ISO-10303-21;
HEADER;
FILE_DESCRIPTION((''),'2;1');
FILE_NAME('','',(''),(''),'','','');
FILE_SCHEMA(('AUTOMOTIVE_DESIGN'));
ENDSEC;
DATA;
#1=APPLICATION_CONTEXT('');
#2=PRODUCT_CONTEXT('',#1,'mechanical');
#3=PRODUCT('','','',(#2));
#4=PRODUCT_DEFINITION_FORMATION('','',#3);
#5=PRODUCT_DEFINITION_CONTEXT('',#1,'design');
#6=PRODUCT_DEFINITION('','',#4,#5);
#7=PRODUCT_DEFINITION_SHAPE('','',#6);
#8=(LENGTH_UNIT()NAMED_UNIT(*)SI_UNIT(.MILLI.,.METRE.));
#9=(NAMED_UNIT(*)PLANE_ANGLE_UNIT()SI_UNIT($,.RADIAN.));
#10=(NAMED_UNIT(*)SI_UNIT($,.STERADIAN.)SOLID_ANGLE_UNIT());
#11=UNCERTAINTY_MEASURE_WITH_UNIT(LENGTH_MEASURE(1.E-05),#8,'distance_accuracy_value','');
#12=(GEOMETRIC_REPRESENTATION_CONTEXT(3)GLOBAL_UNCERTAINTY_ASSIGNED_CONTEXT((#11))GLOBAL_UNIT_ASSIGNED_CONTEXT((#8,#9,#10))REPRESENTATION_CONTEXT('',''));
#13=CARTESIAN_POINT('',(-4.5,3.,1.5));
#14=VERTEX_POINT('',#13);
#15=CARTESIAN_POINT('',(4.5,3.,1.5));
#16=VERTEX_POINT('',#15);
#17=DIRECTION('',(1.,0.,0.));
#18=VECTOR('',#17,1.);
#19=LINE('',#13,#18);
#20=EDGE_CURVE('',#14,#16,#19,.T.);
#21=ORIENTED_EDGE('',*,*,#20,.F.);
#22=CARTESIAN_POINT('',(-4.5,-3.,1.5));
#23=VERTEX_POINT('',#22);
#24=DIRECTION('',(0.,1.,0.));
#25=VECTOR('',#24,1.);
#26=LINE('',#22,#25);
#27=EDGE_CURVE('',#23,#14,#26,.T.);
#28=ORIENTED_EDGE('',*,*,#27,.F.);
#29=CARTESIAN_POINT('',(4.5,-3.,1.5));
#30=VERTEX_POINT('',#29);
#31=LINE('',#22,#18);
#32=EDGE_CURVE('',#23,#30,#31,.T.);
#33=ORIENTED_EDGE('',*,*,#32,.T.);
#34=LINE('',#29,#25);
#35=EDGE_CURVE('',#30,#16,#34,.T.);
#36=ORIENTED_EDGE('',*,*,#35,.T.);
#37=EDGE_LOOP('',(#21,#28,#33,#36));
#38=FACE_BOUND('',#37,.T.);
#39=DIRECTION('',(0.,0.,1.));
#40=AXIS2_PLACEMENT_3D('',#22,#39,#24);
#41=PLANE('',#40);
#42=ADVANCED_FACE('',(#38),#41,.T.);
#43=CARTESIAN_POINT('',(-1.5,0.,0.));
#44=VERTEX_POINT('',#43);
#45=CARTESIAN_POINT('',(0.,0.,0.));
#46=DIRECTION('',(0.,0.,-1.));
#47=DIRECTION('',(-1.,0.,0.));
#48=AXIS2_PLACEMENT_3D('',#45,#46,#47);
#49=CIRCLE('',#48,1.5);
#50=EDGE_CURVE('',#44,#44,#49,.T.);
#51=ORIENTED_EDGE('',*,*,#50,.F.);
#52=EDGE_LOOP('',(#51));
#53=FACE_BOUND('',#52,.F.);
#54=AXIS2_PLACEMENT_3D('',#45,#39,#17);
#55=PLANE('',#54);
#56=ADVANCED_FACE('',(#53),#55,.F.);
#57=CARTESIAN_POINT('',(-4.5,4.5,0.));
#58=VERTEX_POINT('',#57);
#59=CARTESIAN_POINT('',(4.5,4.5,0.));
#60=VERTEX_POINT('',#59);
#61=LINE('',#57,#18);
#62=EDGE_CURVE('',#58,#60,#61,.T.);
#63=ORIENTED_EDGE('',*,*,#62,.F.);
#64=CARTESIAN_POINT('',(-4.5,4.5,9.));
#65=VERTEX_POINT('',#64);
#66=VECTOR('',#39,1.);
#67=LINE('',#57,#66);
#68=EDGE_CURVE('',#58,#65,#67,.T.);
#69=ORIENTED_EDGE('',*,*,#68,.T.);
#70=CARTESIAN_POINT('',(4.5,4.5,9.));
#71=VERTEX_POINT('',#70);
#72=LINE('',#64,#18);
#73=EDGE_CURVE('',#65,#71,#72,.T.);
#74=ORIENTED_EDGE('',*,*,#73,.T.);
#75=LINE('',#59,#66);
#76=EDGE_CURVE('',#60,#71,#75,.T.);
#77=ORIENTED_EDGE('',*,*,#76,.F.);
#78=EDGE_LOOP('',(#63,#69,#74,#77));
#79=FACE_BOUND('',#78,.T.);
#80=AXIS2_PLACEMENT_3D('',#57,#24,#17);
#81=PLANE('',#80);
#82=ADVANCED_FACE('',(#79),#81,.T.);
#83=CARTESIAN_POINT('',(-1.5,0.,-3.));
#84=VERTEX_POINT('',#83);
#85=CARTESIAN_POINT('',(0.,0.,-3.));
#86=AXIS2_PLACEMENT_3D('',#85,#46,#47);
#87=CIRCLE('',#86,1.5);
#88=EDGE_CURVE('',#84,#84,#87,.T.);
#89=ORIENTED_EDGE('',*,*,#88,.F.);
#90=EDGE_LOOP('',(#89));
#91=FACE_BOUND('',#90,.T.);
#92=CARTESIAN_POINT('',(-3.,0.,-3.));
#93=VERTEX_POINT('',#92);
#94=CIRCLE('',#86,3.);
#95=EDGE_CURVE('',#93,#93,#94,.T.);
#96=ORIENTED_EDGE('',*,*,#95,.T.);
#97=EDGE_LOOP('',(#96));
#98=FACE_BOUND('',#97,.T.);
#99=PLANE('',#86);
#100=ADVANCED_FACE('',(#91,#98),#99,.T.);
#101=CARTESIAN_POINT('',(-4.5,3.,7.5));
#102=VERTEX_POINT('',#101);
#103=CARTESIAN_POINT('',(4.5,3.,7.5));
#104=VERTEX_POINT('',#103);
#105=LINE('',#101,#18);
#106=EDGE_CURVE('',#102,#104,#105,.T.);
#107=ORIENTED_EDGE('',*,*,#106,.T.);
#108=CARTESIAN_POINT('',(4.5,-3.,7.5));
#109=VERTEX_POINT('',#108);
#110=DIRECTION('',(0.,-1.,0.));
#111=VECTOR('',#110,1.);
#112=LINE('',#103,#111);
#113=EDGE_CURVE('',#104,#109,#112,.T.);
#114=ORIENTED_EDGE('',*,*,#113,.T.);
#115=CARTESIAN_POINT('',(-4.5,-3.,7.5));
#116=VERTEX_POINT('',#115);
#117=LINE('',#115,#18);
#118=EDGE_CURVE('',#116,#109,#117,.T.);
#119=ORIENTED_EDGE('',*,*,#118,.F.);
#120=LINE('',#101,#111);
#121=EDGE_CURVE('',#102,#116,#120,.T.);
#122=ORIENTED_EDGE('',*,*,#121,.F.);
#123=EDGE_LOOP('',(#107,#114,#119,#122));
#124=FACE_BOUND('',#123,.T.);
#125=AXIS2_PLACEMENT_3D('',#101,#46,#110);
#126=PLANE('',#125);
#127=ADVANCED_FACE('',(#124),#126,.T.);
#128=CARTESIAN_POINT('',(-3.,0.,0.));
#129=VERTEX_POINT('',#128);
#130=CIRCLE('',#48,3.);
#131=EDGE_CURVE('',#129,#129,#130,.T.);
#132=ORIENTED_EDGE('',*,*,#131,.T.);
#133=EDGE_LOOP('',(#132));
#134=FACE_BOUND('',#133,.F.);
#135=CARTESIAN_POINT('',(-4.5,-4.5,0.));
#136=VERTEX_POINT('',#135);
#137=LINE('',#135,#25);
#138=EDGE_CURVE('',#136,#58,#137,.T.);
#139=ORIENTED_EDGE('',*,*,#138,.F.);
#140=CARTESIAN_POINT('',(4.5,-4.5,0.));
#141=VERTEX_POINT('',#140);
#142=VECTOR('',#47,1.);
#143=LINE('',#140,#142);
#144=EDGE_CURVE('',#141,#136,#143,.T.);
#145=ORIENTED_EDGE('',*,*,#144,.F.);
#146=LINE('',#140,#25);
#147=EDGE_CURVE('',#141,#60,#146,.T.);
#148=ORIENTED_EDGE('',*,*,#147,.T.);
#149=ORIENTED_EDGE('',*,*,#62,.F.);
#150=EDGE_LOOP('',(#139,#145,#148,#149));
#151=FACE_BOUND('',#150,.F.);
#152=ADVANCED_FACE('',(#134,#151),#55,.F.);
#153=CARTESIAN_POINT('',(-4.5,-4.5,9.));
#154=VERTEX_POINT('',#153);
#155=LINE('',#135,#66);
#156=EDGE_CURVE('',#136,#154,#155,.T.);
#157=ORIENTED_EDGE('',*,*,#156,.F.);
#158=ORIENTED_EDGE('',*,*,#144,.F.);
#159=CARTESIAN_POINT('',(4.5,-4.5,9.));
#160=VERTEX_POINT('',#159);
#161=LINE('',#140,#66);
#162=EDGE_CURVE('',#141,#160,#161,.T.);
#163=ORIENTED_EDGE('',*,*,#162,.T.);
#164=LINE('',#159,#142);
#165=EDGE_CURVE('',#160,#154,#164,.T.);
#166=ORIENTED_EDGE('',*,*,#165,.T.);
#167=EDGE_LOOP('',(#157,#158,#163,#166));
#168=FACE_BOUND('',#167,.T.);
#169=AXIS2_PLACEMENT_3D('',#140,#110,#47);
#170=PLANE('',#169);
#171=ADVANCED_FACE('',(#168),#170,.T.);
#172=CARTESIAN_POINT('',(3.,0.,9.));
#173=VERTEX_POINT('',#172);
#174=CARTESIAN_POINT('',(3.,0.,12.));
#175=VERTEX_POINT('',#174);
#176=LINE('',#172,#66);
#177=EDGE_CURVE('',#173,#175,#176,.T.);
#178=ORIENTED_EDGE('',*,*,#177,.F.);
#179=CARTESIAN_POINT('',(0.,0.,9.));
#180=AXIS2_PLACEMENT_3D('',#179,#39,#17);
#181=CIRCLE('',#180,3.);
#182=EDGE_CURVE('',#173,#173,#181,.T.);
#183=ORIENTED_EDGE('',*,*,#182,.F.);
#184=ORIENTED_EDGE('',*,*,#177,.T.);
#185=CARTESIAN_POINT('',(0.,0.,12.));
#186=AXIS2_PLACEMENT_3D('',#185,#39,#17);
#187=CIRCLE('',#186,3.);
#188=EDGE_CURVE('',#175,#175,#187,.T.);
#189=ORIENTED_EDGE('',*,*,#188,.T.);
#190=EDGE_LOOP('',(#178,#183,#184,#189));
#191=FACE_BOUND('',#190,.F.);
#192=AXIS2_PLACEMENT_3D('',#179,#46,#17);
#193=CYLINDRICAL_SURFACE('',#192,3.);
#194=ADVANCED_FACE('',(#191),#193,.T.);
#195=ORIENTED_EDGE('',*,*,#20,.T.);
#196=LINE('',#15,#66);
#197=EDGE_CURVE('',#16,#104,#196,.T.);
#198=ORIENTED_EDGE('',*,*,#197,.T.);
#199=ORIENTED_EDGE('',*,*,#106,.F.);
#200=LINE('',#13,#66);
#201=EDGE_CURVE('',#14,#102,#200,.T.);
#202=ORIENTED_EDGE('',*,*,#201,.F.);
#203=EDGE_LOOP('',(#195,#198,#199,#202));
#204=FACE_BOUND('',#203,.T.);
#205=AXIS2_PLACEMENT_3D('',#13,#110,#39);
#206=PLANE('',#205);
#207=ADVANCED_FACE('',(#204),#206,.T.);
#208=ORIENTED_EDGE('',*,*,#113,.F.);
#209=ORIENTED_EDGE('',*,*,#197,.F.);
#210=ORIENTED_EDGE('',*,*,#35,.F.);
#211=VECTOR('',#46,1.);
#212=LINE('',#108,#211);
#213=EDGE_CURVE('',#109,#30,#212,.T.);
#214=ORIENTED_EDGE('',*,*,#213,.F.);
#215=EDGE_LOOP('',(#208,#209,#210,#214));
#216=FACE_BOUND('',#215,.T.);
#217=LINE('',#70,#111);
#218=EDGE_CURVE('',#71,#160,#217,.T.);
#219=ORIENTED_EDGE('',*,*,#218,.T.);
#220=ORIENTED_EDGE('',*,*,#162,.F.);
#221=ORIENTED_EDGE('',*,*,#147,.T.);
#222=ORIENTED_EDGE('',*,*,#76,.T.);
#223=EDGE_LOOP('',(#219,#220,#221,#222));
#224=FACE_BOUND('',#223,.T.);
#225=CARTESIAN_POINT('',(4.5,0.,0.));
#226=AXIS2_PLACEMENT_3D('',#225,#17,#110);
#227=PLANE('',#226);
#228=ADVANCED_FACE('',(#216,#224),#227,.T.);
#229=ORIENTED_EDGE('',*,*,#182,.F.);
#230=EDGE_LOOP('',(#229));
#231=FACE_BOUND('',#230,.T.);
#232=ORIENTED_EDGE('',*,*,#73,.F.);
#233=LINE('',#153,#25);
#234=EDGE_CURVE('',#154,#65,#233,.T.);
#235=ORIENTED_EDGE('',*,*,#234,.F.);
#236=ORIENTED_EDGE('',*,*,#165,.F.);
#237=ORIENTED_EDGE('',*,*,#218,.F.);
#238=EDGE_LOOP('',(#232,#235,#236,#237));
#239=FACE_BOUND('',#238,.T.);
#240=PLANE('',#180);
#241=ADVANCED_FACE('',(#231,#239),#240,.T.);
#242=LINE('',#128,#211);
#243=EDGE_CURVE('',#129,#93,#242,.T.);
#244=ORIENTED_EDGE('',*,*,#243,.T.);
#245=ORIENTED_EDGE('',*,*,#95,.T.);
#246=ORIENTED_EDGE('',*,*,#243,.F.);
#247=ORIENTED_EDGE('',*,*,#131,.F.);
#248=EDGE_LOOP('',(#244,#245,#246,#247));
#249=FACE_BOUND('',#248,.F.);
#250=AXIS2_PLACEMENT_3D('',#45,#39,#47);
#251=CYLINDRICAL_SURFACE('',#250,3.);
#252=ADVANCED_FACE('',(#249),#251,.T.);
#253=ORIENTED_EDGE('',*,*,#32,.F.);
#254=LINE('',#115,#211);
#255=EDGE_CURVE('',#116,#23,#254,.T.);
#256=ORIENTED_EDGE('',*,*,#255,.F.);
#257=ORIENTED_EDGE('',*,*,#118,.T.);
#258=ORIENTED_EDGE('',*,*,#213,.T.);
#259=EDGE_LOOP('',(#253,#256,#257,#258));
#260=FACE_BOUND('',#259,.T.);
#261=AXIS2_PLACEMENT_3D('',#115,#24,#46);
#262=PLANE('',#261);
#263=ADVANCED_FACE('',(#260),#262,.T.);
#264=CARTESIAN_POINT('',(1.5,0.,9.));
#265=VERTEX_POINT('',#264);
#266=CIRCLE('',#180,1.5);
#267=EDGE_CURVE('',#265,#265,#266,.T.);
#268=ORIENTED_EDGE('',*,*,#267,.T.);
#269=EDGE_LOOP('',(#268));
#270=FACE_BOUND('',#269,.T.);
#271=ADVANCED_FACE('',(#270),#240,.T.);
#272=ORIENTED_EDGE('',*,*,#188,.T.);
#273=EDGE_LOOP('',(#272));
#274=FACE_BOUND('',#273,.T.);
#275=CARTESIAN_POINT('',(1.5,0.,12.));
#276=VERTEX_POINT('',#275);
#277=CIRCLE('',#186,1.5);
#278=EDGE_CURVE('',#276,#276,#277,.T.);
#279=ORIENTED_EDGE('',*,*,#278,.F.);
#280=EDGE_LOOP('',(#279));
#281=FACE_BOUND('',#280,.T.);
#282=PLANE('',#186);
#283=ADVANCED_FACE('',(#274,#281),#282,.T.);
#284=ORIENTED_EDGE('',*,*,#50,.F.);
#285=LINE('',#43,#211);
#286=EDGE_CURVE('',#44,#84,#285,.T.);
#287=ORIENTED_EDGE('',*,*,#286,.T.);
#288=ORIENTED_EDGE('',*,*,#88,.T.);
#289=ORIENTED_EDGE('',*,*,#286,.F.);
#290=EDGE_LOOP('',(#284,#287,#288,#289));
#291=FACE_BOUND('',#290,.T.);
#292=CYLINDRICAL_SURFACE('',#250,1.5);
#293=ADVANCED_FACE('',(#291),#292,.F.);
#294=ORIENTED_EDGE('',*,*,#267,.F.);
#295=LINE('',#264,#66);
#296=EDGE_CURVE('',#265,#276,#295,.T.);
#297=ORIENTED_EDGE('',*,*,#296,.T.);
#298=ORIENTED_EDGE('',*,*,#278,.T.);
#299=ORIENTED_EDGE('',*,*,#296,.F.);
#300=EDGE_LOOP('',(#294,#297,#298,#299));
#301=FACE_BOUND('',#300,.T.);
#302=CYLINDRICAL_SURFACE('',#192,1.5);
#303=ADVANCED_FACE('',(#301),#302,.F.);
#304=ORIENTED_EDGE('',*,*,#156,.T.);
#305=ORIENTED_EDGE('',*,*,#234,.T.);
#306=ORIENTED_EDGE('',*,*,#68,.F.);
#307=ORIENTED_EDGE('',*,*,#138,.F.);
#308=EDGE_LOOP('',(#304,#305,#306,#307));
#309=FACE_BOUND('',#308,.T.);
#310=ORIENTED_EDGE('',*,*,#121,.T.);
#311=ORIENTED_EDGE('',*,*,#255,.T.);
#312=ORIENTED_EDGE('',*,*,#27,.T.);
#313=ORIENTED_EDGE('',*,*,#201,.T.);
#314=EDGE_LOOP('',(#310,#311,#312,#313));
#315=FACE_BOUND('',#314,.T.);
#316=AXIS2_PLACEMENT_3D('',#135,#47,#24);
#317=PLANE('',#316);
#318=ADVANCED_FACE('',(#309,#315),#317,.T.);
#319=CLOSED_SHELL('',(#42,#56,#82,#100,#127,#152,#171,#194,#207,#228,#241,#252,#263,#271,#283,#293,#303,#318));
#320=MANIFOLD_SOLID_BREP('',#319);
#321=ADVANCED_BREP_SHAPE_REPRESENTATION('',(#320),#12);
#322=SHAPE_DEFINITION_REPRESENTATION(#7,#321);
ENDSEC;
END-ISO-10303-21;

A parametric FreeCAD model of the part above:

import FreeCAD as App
import Part
import Sketcher

doc = App.newDocument("Part")
body = doc.addObject("PartDesign::Body", "Body")

sketch1 = body.newObject("Sketcher::SketchObject", "Sketch")
sketch1.AttachmentSupport = (doc.getObject("XY_Plane"), [""])
sketch1.MapMode = "FlatFace"
sketch1.addGeometry([
    Part.LineSegment(App.Vector(4, -4, 0), App.Vector(4, 4, 0)),
    Part.LineSegment(App.Vector(4, 4, 0), App.Vector(-4, 4, 0)),
    Part.LineSegment(App.Vector(-4, 4, 0), App.Vector(-4, -4, 0)),
    Part.LineSegment(App.Vector(-4, -4, 0), App.Vector(4, -4, 0)),
], False)
sketch1.addConstraint([
    Sketcher.Constraint("Coincident", 0, 2, 1, 1),
    Sketcher.Constraint("Coincident", 1, 2, 2, 1),
    Sketcher.Constraint("Coincident", 2, 2, 3, 1),
    Sketcher.Constraint("Coincident", 3, 2, 0, 1),
    Sketcher.Constraint("Vertical", 0),
    Sketcher.Constraint("Horizontal", 1),
    Sketcher.Constraint("Vertical", 2),
    Sketcher.Constraint("Horizontal", 3),
    Sketcher.Constraint("Symmetric", 0, 2, 2, 2, -1, 1),
    Sketcher.Constraint("Equal", 3, 0),
    Sketcher.Constraint("DistanceX", 1, 2, 1, 1, 9.0),
])
pad1 = body.newObject("PartDesign::Pad", "Pad")
pad1.Profile = sketch1
pad1.Length = 9

sketch2 = body.newObject("Sketcher::SketchObject", "Sketch001")
sketch2.AttachmentSupport = (doc.getObject("XY_Plane"), [""])
sketch2.MapMode = "FlatFace"
sketch2.AttachmentOffset = App.Placement(App.Vector(0, 0, 9), App.Rotation())
sketch2.addGeometry([
    Part.Circle(App.Vector(0, 0, 0), App.Vector(0, 0, 1), 3),
    Part.Circle(App.Vector(0, 0, 0), App.Vector(0, 0, 1), 1.5),
], False)
sketch2.addConstraint([
    Sketcher.Constraint("Coincident", 0, 3, -1, 1),
    Sketcher.Constraint("Coincident", 1, 3, -1, 1),
    Sketcher.Constraint("Diameter", 0, 6.0),
    Sketcher.Constraint("Diameter", 1, 3.0),
])
pad2 = body.newObject("PartDesign::Pad", "Pad001")
pad2.Profile = sketch2
pad2.Length = 3

sketch3 = body.newObject("Sketcher::SketchObject", "Sketch002")
sketch3.AttachmentSupport = (doc.getObject("XY_Plane"), [""])
sketch3.MapMode = "FlatFace"
sketch3.addGeometry([
    Part.Circle(App.Vector(0, 0, 0), App.Vector(0, 0, 1), 3),
    Part.Circle(App.Vector(0, 0, 0), App.Vector(0, 0, 1), 1.5),
], False)
sketch3.addConstraint([
    Sketcher.Constraint("Coincident", 0, 3, -1, 1),
    Sketcher.Constraint("Coincident", 1, 3, -1, 1),
    Sketcher.Constraint("Diameter", 0, 6.0),
    Sketcher.Constraint("Diameter", 1, 3.0),
])
pad3 = body.newObject("PartDesign::Pad", "Pad002")
pad3.Profile = sketch3
pad3.Length = 3
pad3.Reversed = True

sketch4 = body.newObject("Sketcher::SketchObject", "Sketch003")
sketch4.AttachmentSupport = (doc.getObject("YZ_Plane"), [""])
sketch4.MapMode = "FlatFace"
sketch4.AttachmentOffset = App.Placement(App.Vector(0, 0, -4.5), App.Rotation())
sketch4.addGeometry([
    Part.LineSegment(App.Vector(3, 2, 0), App.Vector(-3, 2, 0)),
    Part.LineSegment(App.Vector(-3, 2, 0), App.Vector(-3, 8, 0)),
    Part.LineSegment(App.Vector(-3, 8, 0), App.Vector(3, 8, 0)),
    Part.LineSegment(App.Vector(3, 8, 0), App.Vector(3, 2, 0)),
], False)
sketch4.addConstraint([
    Sketcher.Constraint("Coincident", 0, 2, 1, 1),
    Sketcher.Constraint("Coincident", 1, 2, 2, 1),
    Sketcher.Constraint("Coincident", 2, 2, 3, 1),
    Sketcher.Constraint("Coincident", 3, 2, 0, 1),
    Sketcher.Constraint("Horizontal", 0),
    Sketcher.Constraint("Vertical", 1),
    Sketcher.Constraint("Horizontal", 2),
    Sketcher.Constraint("Vertical", 3),
    Sketcher.Constraint("Equal", 2, 1),
    Sketcher.Constraint("DistanceX", 0, 2, 0, 1, 6.0),
    Sketcher.Constraint("DistanceY", -1, 1, 0, 2, 1.5),
    Sketcher.Constraint("DistanceX", 0, 2, -1, 1, 3.0),
])
pocket1 = body.newObject("PartDesign::Pocket", "Pocket")
pocket1.Profile = sketch4
pocket1.Length = 9
pocket1.Reversed = True

doc.recompute()
